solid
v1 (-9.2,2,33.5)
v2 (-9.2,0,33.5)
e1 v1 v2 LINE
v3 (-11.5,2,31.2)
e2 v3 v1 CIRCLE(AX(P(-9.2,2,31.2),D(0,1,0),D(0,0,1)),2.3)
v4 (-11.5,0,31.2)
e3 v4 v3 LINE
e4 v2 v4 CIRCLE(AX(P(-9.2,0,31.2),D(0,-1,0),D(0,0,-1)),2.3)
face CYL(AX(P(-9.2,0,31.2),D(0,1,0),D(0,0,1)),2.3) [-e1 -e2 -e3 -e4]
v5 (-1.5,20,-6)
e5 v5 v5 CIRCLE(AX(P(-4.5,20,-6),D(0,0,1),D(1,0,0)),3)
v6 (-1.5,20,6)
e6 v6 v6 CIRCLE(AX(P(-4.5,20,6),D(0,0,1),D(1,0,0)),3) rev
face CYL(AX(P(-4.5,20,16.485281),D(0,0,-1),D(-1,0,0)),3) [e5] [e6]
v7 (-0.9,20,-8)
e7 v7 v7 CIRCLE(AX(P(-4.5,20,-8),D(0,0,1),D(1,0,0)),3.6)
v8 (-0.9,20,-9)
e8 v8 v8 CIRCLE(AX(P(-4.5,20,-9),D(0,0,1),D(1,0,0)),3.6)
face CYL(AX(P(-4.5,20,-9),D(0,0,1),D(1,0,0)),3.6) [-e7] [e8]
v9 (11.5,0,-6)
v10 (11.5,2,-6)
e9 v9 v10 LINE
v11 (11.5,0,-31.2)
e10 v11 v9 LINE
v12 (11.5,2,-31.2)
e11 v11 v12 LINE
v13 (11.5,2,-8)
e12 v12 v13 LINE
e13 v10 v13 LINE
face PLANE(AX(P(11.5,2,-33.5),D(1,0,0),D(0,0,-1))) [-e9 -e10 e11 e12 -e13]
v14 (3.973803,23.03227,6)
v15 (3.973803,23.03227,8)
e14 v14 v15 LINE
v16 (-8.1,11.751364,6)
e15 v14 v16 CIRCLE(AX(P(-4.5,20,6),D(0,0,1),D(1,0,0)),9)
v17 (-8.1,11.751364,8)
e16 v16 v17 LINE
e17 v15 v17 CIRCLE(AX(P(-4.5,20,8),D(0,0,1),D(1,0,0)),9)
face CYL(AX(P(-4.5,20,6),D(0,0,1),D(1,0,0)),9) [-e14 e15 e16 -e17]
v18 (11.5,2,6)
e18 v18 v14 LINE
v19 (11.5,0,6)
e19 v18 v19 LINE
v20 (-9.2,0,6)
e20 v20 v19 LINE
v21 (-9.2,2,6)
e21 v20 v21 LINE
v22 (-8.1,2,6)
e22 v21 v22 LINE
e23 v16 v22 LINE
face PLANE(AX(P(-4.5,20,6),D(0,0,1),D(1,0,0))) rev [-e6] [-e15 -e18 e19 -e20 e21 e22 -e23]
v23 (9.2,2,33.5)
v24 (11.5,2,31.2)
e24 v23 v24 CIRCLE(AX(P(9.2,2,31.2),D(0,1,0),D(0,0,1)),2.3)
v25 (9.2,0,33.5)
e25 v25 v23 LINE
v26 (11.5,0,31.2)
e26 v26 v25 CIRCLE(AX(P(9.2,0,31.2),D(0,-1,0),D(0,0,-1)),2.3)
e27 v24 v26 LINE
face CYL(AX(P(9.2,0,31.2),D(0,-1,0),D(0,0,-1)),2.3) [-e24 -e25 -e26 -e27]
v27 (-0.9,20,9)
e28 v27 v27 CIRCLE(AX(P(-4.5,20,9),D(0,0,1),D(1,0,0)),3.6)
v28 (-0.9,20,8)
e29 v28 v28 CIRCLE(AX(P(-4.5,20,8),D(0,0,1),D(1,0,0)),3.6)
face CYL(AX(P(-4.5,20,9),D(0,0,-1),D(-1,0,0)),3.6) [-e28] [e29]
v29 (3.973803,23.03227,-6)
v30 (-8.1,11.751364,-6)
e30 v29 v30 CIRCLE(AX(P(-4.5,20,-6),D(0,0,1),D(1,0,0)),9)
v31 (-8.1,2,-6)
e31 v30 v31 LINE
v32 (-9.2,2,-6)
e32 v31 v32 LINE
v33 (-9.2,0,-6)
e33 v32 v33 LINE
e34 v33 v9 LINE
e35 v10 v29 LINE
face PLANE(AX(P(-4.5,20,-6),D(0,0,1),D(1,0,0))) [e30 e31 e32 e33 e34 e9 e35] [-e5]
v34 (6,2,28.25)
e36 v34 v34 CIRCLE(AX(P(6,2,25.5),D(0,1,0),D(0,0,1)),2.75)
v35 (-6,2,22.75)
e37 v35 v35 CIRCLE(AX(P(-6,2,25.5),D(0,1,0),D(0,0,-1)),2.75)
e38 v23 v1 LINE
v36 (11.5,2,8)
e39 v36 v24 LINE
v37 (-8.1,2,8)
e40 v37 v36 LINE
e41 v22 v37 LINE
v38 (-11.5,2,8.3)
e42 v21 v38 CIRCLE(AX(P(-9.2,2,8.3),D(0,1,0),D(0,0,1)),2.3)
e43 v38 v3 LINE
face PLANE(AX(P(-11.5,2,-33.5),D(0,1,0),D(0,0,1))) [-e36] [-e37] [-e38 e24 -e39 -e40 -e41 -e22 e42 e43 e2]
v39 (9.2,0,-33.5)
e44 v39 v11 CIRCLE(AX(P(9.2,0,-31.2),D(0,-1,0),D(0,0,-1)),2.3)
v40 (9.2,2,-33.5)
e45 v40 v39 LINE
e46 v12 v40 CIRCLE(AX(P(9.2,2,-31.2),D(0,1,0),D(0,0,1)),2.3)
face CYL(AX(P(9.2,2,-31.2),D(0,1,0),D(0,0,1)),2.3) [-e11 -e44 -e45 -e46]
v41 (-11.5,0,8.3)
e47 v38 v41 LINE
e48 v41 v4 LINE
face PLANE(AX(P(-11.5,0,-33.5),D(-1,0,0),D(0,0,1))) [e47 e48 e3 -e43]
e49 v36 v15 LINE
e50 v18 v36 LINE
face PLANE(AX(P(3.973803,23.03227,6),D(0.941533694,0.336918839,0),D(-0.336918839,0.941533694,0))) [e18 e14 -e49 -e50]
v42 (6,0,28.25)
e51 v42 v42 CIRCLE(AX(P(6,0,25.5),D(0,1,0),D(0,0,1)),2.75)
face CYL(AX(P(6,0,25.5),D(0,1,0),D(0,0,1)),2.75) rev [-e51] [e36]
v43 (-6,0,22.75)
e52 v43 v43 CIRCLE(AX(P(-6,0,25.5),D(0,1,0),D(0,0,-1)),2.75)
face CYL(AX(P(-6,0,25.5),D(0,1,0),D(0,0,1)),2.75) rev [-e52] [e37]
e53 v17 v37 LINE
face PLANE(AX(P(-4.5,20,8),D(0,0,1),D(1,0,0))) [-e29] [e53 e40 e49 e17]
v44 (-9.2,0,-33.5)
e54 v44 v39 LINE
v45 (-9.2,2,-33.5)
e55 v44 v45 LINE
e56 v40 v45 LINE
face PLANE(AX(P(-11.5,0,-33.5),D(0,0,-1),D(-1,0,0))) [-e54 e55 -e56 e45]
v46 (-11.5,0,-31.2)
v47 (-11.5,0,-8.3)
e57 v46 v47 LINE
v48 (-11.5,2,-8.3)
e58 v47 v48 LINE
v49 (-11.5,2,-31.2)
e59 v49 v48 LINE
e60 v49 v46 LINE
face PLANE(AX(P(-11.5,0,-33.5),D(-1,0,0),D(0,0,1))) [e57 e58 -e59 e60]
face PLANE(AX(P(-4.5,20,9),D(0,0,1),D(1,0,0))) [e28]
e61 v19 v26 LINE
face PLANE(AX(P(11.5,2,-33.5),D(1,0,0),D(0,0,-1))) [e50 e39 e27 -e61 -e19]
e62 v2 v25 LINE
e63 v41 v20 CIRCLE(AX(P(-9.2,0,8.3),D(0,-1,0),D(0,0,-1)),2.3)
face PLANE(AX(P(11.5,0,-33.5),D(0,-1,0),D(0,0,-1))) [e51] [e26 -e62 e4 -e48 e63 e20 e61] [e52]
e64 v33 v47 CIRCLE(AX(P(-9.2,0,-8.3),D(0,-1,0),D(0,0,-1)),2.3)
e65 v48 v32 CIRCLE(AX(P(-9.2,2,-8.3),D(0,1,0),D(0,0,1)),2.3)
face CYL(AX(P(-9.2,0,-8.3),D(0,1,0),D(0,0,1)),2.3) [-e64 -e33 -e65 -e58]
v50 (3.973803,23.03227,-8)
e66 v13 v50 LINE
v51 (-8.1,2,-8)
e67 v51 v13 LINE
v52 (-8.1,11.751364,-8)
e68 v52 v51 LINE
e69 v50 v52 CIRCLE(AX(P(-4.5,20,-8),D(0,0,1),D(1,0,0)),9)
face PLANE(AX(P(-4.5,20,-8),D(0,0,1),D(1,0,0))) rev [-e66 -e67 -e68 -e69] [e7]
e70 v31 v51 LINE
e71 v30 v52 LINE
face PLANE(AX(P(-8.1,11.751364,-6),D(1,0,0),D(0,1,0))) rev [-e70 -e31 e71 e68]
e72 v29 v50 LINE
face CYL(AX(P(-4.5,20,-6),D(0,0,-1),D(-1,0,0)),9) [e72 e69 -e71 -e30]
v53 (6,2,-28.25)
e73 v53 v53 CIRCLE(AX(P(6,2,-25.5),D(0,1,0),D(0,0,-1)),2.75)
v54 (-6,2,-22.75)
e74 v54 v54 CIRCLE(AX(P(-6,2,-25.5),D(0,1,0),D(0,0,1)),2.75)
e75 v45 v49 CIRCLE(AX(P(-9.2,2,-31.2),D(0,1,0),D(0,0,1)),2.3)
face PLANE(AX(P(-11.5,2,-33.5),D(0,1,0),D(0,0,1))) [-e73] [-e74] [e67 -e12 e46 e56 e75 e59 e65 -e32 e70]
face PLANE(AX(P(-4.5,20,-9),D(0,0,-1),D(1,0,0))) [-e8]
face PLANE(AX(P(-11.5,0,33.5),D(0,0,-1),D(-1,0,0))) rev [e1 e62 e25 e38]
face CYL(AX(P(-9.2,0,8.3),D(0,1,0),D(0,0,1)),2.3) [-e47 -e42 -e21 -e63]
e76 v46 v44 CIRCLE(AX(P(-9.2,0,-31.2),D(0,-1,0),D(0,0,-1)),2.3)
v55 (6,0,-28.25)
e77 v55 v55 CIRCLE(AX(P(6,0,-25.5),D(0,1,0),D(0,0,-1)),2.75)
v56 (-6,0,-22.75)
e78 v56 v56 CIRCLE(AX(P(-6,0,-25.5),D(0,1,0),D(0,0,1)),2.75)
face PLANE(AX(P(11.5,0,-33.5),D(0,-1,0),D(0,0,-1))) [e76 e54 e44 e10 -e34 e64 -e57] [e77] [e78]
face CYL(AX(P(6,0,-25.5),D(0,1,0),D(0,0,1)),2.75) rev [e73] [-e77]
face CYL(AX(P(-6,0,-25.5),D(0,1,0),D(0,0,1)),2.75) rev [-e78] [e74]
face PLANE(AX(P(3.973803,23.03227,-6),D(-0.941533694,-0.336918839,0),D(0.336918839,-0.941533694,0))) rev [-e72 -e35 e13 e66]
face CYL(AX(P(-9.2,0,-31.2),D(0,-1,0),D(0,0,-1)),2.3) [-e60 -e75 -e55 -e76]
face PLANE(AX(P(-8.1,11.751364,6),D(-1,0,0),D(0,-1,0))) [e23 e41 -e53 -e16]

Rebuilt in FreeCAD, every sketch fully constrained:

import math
import FreeCAD as App
import Part
import Sketcher
from FreeCAD import Vector
Q = App.Units.Quantity


def edges_at(feature, points):
    """Names of the edges that pass closest to the given points."""
    edges = feature.Shape.Edges
    near = lambda p: min(range(len(edges)), key=lambda i: edges[i].distToShape(Part.Vertex(*p))[0])
    return sorted({f"Edge{near(p) + 1}" for p in points})


def add_polygon(sketch, points):
    """Adds a closed chain of lines whose ends are joined by coincident constraints."""
    first, n = sketch.GeometryCount, len(points)
    for a, b in zip(points, points[1:] + points[:1]):
        sketch.addGeometry(Part.LineSegment(App.Vector(*a, 0), App.Vector(*b, 0)), False)
    for i in range(n):
        sketch.addConstraint(Sketcher.Constraint("Coincident", first + i, 2, first + (i + 1) % n, 1))

doc = App.newDocument("Part")
body = doc.addObject("PartDesign::Body", "Body")

# Sketch on XY plane
sketch1 = doc.addObject("Sketcher::SketchObject", "Sketch")
body.addObject(sketch1)
sketch1.AttachmentSupport = (doc.XY_Plane, [""])
sketch1.MapMode = "FlatFace"
sketch1.AttachmentOffset = App.Placement(Vector(0, 0, 33.5), App.Rotation())
add_polygon(sketch1, [(-11.5, 2), (-11.5, 0), (11.5, 0), (11.5, 2)])  # lines 0-3
sketch1.addConstraint([
    Sketcher.Constraint("Vertical", 0),
    Sketcher.Constraint("Horizontal", 1),
    Sketcher.Constraint("Vertical", 2),
    Sketcher.Constraint("Horizontal", 3),
    Sketcher.Constraint("Symmetric", 0, 2, 1, 2, -1, 1),
    Sketcher.Constraint("DistanceX", 1, 1, 1, 2, Q("23 mm")),
    Sketcher.Constraint("DistanceY", 0, 2, 0, 1, Q("2 mm")),
])
pad1 = doc.addObject("PartDesign::Pad", "Pad")
body.addObject(pad1)
pad1.Profile = sketch1
pad1.Length = 67
pad1.Reversed = True

# Sketch on XY plane
sketch2 = doc.addObject("Sketcher::SketchObject", "Sketch001")
body.addObject(sketch2)
sketch2.AttachmentSupport = (doc.XY_Plane, [""])
sketch2.MapMode = "FlatFace"
sketch2.AttachmentOffset = App.Placement(Vector(0, 0, 8), App.Rotation())
sketch2.addGeometry([
    Part.LineSegment(Vector(-8.1, 11.8, 0), Vector(-8.1, 0, 0)),  # 0
    Part.LineSegment(Vector(-8.1, 0, 0), Vector(11.5, 0, 0)),  # 1
    Part.LineSegment(Vector(11.5, 0, 0), Vector(11.5, 2, 0)),  # 2
    Part.LineSegment(Vector(11.5, 2, 0), Vector(4, 23, 0)),  # 3
    Part.ArcOfCircle(Part.Circle(Vector(-4.5, 20, 0), Vector(0, 0, 1), 9), math.radians(20), math.radians(246)),  # 4
    Part.Circle(Vector(-4.5, 20, 0), Vector(0, 0, 1), 3),  # 5
], False)
sketch2.addConstraint([
    Sketcher.Constraint("Coincident", 0, 2, 1, 1),
    Sketcher.Constraint("Coincident", 1, 2, 2, 1),
    Sketcher.Constraint("Coincident", 2, 2, 3, 1),
    Sketcher.Constraint("Tangent", 3, 2, 4, 1),
    Sketcher.Constraint("Coincident", 4, 2, 0, 1),
    Sketcher.Constraint("Vertical", 0),
    Sketcher.Constraint("Horizontal", 1),
    Sketcher.Constraint("Vertical", 2),
    Sketcher.Constraint("Coincident", 5, 3, 4, 3),
    Sketcher.Constraint("PointOnObject", 0, 2, -1),
    Sketcher.Constraint("Diameter", 5, Q("6 mm")),
    Sketcher.Constraint("Radius", 4, Q("9 mm")),
    Sketcher.Constraint("DistanceY", 2, 1, 2, 2, Q("2 mm")),
    Sketcher.Constraint("DistanceX", 1, 1, 1, 2, Q("19.6 mm")),
    Sketcher.Constraint("DistanceY", -1, 1, 4, 3, Q("20 mm")),
    Sketcher.Constraint("DistanceX", 4, 3, 1, 2, Q("16 mm")),
    Sketcher.Constraint("DistanceX", 4, 3, -1, 1, Q("4.5 mm")),
])
pad2 = doc.addObject("PartDesign::Pad", "Pad001")
body.addObject(pad2)
pad2.Profile = sketch2
pad2.Length = 2
pad2.Reversed = True

# Sketch on XY plane
sketch3 = doc.addObject("Sketcher::SketchObject", "Sketch002")
body.addObject(sketch3)
sketch3.AttachmentSupport = (doc.XY_Plane, [""])
sketch3.MapMode = "FlatFace"
sketch3.AttachmentOffset = App.Placement(Vector(0, 0, -6), App.Rotation())
sketch3.addGeometry([
    Part.LineSegment(Vector(-8.1, 11.8, 0), Vector(-8.1, 0, 0)),  # 0
    Part.LineSegment(Vector(-8.1, 0, 0), Vector(11.5, 0, 0)),  # 1
    Part.LineSegment(Vector(11.5, 0, 0), Vector(11.5, 2, 0)),  # 2
    Part.LineSegment(Vector(11.5, 2, 0), Vector(4, 23, 0)),  # 3
    Part.ArcOfCircle(Part.Circle(Vector(-4.5, 20, 0), Vector(0, 0, 1), 9), math.radians(20), math.radians(246)),  # 4
    Part.Circle(Vector(-4.5, 20, 0), Vector(0, 0, 1), 3),  # 5
], False)
sketch3.addConstraint([
    Sketcher.Constraint("Coincident", 0, 2, 1, 1),
    Sketcher.Constraint("Coincident", 1, 2, 2, 1),
    Sketcher.Constraint("Coincident", 2, 2, 3, 1),
    Sketcher.Constraint("Tangent", 3, 2, 4, 1),
    Sketcher.Constraint("Coincident", 4, 2, 0, 1),
    Sketcher.Constraint("Vertical", 0),
    Sketcher.Constraint("Horizontal", 1),
    Sketcher.Constraint("Vertical", 2),
    Sketcher.Constraint("Coincident", 5, 3, 4, 3),
    Sketcher.Constraint("PointOnObject", 0, 2, -1),
    Sketcher.Constraint("Diameter", 5, Q("6 mm")),
    Sketcher.Constraint("Radius", 4, Q("9 mm")),
    Sketcher.Constraint("DistanceY", 2, 1, 2, 2, Q("2 mm")),
    Sketcher.Constraint("DistanceX", 1, 1, 1, 2, Q("19.6 mm")),
    Sketcher.Constraint("DistanceY", -1, 1, 4, 3, Q("20 mm")),
    Sketcher.Constraint("DistanceX", 4, 3, 1, 2, Q("16 mm")),
    Sketcher.Constraint("DistanceX", 4, 3, -1, 1, Q("4.5 mm")),
])
pad3 = doc.addObject("PartDesign::Pad", "Pad002")
body.addObject(pad3)
pad3.Profile = sketch3
pad3.Length = 2
pad3.Reversed = True

# Sketch on XY plane
sketch4 = doc.addObject("Sketcher::SketchObject", "Sketch003")
body.addObject(sketch4)
sketch4.AttachmentSupport = (doc.XY_Plane, [""])
sketch4.MapMode = "FlatFace"
sketch4.AttachmentOffset = App.Placement(Vector(0, 0, 8), App.Rotation())
sketch4.addGeometry(Part.Circle(Vector(-4.5, 20, 0), Vector(0, 0, 1), 3.6), False)
sketch4.addConstraint([
    Sketcher.Constraint("Diameter", 0, Q("7.2 mm")),
    Sketcher.Constraint("DistanceY", -1, 1, 0, 3, Q("20 mm")),
    Sketcher.Constraint("DistanceX", 0, 3, -1, 1, Q("4.5 mm")),
])
pad4 = doc.addObject("PartDesign::Pad", "Pad003")
body.addObject(pad4)
pad4.Profile = sketch4
pad4.Length = 1
doc.recompute()

mirrored = doc.addObject("PartDesign::Mirrored", "Mirrored")
body.addObject(mirrored)
mirrored.Originals = [pad4]
mirrored.MirrorPlane = (doc.XY_Plane, [""])
body.Tip = mirrored

# Sketch on XY plane
sketch5 = doc.addObject("Sketcher::SketchObject", "Sketch004")
body.addObject(sketch5)
sketch5.AttachmentSupport = (doc.XY_Plane, [""])
sketch5.MapMode = "FlatFace"
sketch5.AttachmentOffset = App.Placement(Vector(0, 0, 8), App.Rotation())
sketch5.addGeometry(Part.Circle(Vector(-4.5, 20, 0), Vector(0, 0, 1), 3), False)
sketch5.addConstraint([
    Sketcher.Constraint("Diameter", 0, Q("6 mm")),
    Sketcher.Constraint("DistanceY", -1, 1, 0, 3, Q("20 mm")),
    Sketcher.Constraint("DistanceX", 0, 3, -1, 1, Q("4.5 mm")),
])
pad5 = doc.addObject("PartDesign::Pad", "Pad004")
body.addObject(pad5)
pad5.Profile = sketch5
pad5.Length = 16
pad5.Reversed = True

# Sketch on YZ plane
sketch6 = doc.addObject("Sketcher::SketchObject", "Sketch005")
body.addObject(sketch6)
sketch6.AttachmentSupport = (doc.YZ_Plane, [""])
sketch6.MapMode = "FlatFace"
sketch6.AttachmentOffset = App.Placement(Vector(0, 0, 11.5), App.Rotation())
add_polygon(sketch6, [(13, 6), (0, 6), (0, -6), (13, -6)])  # lines 0-3
sketch6.addConstraint([
    Sketcher.Constraint("Horizontal", 0),
    Sketcher.Constraint("Vertical", 1),
    Sketcher.Constraint("Horizontal", 2),
    Sketcher.Constraint("Vertical", 3),
    Sketcher.Constraint("Symmetric", 0, 2, 1, 2, -1, 1),
    Sketcher.Constraint("DistanceY", 1, 2, 1, 1, Q("12 mm")),
    Sketcher.Constraint("DistanceX", 0, 2, 0, 1, Q("12.516135 mm")),
])
pocket1 = doc.addObject("PartDesign::Pocket", "Pocket")
body.addObject(pocket1)
pocket1.Profile = sketch6
pocket1.Length = 23

# Sketch on XZ plane
sketch7 = doc.addObject("Sketcher::SketchObject", "Sketch006")
body.addObject(sketch7)
sketch7.AttachmentSupport = (doc.XZ_Plane, [""])
sketch7.MapMode = "FlatFace"
sketch7.AttachmentOffset = App.Placement(Vector(0, 0, -2), App.Rotation())
sketch7.addGeometry([
    Part.Circle(Vector(-6, -25.5, 0), Vector(0, 0, 1), 2.8),
    Part.Circle(Vector(6, -25.5, 0), Vector(0, 0, 1), 2.8),
    Part.Circle(Vector(6, 25.5, 0), Vector(0, 0, 1), 2.8),
    Part.Circle(Vector(-6, 25.5, 0), Vector(0, 0, 1), 2.8),
], False)
sketch7.addConstraint([
    Sketcher.Constraint("Equal", 0, 1),
    Sketcher.Constraint("Equal", 1, 2),
    Sketcher.Constraint("Equal", 2, 3),
    Sketcher.Constraint("Symmetric", 0, 3, 2, 3, -1, 1),
    Sketcher.Constraint("Symmetric", 1, 3, 3, 3, -1, 1),
    Sketcher.Constraint("Symmetric", 0, 3, 1, 3, -2),
    Sketcher.Constraint("Diameter", 0, Q("5.5 mm")),
    Sketcher.Constraint("DistanceX", 0, 3, -1, 1, Q("6 mm")),
    Sketcher.Constraint("DistanceY", 1, 3, 2, 3, Q("51 mm")),
])
pocket2 = doc.addObject("PartDesign::Pocket", "Pocket001")
body.addObject(pocket2)
pocket2.Profile = sketch7
pocket2.Type = "ThroughAll"
pocket2.Reversed = True
doc.recompute()

fillet = doc.addObject("PartDesign::Fillet", "Fillet")
body.addObject(fillet)
fillet.Base = (pocket2, edges_at(pocket2, [
    (-11.5, 1, -33.5),
    (-11.5, 1, 33.5),
    (11.5, 1, 33.5),
    (11.5, 1, -33.5),
    (-11.5, 1, -6),
    (-11.5, 1, 6),
]))
fillet.Radius = 2.3

doc.recompute()
